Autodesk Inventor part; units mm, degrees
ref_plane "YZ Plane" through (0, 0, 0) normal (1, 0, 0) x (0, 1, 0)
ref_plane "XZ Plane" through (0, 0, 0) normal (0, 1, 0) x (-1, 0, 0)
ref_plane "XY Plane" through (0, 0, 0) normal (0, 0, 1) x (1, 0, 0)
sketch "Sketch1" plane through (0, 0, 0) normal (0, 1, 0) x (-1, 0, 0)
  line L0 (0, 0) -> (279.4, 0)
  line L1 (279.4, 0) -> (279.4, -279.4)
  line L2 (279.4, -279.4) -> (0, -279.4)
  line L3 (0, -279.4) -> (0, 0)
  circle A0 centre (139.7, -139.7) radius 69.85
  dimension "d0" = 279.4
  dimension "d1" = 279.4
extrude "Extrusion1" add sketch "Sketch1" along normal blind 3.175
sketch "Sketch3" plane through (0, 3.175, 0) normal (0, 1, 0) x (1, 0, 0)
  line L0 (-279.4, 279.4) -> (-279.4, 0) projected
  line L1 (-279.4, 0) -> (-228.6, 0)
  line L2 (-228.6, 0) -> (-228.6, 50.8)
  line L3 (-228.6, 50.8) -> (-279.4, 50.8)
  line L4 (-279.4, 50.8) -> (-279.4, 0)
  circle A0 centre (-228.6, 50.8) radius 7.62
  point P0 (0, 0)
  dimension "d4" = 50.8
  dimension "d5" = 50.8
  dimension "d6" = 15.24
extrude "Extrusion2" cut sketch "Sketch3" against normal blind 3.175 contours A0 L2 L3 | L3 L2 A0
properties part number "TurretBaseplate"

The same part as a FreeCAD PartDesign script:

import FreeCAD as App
import Part
import Sketcher

V = App.Vector
Q = App.Units.Quantity

doc = App.newDocument("Part")
params = doc.addObject("Spreadsheet::Sheet", "Params")
for row, (alias, value) in enumerate([
    ("sketch1_width", "11 in"),
    ("sketch1_diameter", "5.5 in"),
    ("pad1_length", "0.125 in"),
    ("sketch2_diameter", "0.6 in"),
    ("pocket1_length", "0.125 in"),
], start=1):
    params.set(f"A{row}", alias)
    params.set(f"B{row}", "=" + value)
    params.setAlias(f"B{row}", alias)

body = doc.addObject("PartDesign::Body", "Body")

# Sketch on XZ plane
sketch1 = body.newObject("Sketcher::SketchObject", "Sketch")
sketch1.AttachmentSupport = (doc.getObject("XZ_Plane"), [""])
sketch1.MapMode = "FlatFace"
sketch1.addGeometry([
    Part.LineSegment(V(-279, 0, 0), V(0, 0, 0)),  # 0
    Part.LineSegment(V(0, 0, 0), V(0, -279, 0)),  # 1
    Part.LineSegment(V(0, -279, 0), V(-279, -279, 0)),  # 2
    Part.LineSegment(V(-279, -279, 0), V(-279, 0, 0)),  # 3
    Part.Circle(V(-140, -140, 0), V(0, 0, 1), 70),  # 4
], False)
sketch1.addConstraint([
    Sketcher.Constraint("Coincident", 0, 2, 1, 1),
    Sketcher.Constraint("Coincident", 1, 2, 2, 1),
    Sketcher.Constraint("Coincident", 2, 2, 3, 1),
    Sketcher.Constraint("Coincident", 3, 2, 0, 1),
    Sketcher.Constraint("Horizontal", 0),
    Sketcher.Constraint("Vertical", 1),
    Sketcher.Constraint("Horizontal", 2),
    Sketcher.Constraint("Vertical", 3),
    Sketcher.Constraint("Coincident", 0, 2, -1, 1),
    Sketcher.Constraint("Equal", 2, 1),
    Sketcher.Constraint("DistanceX", 0, 1, 0, 2, Q("11 in")),
    Sketcher.Constraint("Diameter", 4, Q("5.5 in")),
    Sketcher.Constraint("DistanceX", 4, 3, -1, 1, Q("5.5 in")),
    Sketcher.Constraint("DistanceY", 4, 3, -1, 1, Q("5.5 in")),
])
sketch1.setExpression("Constraints[10]", "Params.sketch1_width")
sketch1.setExpression("Constraints[11]", "Params.sketch1_diameter")
pad1 = body.newObject("PartDesign::Pad", "Pad")
pad1.Profile = sketch1
pad1.setExpression("Length", "Params.pad1_length")
pad1.Reversed = True

# Sketch on XZ plane
sketch2 = body.newObject("Sketcher::SketchObject", "Sketch001")
sketch2.AttachmentSupport = (doc.getObject("XZ_Plane"), [""])
sketch2.MapMode = "FlatFace"
sketch2.AttachmentOffset = App.Placement(V(0, 0, -0.125 * 25.4), App.Rotation())
sketch2.addGeometry(Part.Circle(V(-229, -51, 0), V(0, 0, 1), 8), False)
sketch2.addConstraint([
    Sketcher.Constraint("Diameter", 0, Q("0.6 in")),
    Sketcher.Constraint("DistanceY", 0, 3, -1, 1, Q("2 in")),
    Sketcher.Constraint("DistanceX", 0, 3, -1, 1, Q("9 in")),
])
sketch2.setExpression("Constraints[0]", "Params.sketch2_diameter")
pocket1 = body.newObject("PartDesign::Pocket", "Pocket")
pocket1.Profile = sketch2
pocket1.setExpression("Length", "Params.pocket1_length")
pocket1.Reversed = True

doc.recompute()
